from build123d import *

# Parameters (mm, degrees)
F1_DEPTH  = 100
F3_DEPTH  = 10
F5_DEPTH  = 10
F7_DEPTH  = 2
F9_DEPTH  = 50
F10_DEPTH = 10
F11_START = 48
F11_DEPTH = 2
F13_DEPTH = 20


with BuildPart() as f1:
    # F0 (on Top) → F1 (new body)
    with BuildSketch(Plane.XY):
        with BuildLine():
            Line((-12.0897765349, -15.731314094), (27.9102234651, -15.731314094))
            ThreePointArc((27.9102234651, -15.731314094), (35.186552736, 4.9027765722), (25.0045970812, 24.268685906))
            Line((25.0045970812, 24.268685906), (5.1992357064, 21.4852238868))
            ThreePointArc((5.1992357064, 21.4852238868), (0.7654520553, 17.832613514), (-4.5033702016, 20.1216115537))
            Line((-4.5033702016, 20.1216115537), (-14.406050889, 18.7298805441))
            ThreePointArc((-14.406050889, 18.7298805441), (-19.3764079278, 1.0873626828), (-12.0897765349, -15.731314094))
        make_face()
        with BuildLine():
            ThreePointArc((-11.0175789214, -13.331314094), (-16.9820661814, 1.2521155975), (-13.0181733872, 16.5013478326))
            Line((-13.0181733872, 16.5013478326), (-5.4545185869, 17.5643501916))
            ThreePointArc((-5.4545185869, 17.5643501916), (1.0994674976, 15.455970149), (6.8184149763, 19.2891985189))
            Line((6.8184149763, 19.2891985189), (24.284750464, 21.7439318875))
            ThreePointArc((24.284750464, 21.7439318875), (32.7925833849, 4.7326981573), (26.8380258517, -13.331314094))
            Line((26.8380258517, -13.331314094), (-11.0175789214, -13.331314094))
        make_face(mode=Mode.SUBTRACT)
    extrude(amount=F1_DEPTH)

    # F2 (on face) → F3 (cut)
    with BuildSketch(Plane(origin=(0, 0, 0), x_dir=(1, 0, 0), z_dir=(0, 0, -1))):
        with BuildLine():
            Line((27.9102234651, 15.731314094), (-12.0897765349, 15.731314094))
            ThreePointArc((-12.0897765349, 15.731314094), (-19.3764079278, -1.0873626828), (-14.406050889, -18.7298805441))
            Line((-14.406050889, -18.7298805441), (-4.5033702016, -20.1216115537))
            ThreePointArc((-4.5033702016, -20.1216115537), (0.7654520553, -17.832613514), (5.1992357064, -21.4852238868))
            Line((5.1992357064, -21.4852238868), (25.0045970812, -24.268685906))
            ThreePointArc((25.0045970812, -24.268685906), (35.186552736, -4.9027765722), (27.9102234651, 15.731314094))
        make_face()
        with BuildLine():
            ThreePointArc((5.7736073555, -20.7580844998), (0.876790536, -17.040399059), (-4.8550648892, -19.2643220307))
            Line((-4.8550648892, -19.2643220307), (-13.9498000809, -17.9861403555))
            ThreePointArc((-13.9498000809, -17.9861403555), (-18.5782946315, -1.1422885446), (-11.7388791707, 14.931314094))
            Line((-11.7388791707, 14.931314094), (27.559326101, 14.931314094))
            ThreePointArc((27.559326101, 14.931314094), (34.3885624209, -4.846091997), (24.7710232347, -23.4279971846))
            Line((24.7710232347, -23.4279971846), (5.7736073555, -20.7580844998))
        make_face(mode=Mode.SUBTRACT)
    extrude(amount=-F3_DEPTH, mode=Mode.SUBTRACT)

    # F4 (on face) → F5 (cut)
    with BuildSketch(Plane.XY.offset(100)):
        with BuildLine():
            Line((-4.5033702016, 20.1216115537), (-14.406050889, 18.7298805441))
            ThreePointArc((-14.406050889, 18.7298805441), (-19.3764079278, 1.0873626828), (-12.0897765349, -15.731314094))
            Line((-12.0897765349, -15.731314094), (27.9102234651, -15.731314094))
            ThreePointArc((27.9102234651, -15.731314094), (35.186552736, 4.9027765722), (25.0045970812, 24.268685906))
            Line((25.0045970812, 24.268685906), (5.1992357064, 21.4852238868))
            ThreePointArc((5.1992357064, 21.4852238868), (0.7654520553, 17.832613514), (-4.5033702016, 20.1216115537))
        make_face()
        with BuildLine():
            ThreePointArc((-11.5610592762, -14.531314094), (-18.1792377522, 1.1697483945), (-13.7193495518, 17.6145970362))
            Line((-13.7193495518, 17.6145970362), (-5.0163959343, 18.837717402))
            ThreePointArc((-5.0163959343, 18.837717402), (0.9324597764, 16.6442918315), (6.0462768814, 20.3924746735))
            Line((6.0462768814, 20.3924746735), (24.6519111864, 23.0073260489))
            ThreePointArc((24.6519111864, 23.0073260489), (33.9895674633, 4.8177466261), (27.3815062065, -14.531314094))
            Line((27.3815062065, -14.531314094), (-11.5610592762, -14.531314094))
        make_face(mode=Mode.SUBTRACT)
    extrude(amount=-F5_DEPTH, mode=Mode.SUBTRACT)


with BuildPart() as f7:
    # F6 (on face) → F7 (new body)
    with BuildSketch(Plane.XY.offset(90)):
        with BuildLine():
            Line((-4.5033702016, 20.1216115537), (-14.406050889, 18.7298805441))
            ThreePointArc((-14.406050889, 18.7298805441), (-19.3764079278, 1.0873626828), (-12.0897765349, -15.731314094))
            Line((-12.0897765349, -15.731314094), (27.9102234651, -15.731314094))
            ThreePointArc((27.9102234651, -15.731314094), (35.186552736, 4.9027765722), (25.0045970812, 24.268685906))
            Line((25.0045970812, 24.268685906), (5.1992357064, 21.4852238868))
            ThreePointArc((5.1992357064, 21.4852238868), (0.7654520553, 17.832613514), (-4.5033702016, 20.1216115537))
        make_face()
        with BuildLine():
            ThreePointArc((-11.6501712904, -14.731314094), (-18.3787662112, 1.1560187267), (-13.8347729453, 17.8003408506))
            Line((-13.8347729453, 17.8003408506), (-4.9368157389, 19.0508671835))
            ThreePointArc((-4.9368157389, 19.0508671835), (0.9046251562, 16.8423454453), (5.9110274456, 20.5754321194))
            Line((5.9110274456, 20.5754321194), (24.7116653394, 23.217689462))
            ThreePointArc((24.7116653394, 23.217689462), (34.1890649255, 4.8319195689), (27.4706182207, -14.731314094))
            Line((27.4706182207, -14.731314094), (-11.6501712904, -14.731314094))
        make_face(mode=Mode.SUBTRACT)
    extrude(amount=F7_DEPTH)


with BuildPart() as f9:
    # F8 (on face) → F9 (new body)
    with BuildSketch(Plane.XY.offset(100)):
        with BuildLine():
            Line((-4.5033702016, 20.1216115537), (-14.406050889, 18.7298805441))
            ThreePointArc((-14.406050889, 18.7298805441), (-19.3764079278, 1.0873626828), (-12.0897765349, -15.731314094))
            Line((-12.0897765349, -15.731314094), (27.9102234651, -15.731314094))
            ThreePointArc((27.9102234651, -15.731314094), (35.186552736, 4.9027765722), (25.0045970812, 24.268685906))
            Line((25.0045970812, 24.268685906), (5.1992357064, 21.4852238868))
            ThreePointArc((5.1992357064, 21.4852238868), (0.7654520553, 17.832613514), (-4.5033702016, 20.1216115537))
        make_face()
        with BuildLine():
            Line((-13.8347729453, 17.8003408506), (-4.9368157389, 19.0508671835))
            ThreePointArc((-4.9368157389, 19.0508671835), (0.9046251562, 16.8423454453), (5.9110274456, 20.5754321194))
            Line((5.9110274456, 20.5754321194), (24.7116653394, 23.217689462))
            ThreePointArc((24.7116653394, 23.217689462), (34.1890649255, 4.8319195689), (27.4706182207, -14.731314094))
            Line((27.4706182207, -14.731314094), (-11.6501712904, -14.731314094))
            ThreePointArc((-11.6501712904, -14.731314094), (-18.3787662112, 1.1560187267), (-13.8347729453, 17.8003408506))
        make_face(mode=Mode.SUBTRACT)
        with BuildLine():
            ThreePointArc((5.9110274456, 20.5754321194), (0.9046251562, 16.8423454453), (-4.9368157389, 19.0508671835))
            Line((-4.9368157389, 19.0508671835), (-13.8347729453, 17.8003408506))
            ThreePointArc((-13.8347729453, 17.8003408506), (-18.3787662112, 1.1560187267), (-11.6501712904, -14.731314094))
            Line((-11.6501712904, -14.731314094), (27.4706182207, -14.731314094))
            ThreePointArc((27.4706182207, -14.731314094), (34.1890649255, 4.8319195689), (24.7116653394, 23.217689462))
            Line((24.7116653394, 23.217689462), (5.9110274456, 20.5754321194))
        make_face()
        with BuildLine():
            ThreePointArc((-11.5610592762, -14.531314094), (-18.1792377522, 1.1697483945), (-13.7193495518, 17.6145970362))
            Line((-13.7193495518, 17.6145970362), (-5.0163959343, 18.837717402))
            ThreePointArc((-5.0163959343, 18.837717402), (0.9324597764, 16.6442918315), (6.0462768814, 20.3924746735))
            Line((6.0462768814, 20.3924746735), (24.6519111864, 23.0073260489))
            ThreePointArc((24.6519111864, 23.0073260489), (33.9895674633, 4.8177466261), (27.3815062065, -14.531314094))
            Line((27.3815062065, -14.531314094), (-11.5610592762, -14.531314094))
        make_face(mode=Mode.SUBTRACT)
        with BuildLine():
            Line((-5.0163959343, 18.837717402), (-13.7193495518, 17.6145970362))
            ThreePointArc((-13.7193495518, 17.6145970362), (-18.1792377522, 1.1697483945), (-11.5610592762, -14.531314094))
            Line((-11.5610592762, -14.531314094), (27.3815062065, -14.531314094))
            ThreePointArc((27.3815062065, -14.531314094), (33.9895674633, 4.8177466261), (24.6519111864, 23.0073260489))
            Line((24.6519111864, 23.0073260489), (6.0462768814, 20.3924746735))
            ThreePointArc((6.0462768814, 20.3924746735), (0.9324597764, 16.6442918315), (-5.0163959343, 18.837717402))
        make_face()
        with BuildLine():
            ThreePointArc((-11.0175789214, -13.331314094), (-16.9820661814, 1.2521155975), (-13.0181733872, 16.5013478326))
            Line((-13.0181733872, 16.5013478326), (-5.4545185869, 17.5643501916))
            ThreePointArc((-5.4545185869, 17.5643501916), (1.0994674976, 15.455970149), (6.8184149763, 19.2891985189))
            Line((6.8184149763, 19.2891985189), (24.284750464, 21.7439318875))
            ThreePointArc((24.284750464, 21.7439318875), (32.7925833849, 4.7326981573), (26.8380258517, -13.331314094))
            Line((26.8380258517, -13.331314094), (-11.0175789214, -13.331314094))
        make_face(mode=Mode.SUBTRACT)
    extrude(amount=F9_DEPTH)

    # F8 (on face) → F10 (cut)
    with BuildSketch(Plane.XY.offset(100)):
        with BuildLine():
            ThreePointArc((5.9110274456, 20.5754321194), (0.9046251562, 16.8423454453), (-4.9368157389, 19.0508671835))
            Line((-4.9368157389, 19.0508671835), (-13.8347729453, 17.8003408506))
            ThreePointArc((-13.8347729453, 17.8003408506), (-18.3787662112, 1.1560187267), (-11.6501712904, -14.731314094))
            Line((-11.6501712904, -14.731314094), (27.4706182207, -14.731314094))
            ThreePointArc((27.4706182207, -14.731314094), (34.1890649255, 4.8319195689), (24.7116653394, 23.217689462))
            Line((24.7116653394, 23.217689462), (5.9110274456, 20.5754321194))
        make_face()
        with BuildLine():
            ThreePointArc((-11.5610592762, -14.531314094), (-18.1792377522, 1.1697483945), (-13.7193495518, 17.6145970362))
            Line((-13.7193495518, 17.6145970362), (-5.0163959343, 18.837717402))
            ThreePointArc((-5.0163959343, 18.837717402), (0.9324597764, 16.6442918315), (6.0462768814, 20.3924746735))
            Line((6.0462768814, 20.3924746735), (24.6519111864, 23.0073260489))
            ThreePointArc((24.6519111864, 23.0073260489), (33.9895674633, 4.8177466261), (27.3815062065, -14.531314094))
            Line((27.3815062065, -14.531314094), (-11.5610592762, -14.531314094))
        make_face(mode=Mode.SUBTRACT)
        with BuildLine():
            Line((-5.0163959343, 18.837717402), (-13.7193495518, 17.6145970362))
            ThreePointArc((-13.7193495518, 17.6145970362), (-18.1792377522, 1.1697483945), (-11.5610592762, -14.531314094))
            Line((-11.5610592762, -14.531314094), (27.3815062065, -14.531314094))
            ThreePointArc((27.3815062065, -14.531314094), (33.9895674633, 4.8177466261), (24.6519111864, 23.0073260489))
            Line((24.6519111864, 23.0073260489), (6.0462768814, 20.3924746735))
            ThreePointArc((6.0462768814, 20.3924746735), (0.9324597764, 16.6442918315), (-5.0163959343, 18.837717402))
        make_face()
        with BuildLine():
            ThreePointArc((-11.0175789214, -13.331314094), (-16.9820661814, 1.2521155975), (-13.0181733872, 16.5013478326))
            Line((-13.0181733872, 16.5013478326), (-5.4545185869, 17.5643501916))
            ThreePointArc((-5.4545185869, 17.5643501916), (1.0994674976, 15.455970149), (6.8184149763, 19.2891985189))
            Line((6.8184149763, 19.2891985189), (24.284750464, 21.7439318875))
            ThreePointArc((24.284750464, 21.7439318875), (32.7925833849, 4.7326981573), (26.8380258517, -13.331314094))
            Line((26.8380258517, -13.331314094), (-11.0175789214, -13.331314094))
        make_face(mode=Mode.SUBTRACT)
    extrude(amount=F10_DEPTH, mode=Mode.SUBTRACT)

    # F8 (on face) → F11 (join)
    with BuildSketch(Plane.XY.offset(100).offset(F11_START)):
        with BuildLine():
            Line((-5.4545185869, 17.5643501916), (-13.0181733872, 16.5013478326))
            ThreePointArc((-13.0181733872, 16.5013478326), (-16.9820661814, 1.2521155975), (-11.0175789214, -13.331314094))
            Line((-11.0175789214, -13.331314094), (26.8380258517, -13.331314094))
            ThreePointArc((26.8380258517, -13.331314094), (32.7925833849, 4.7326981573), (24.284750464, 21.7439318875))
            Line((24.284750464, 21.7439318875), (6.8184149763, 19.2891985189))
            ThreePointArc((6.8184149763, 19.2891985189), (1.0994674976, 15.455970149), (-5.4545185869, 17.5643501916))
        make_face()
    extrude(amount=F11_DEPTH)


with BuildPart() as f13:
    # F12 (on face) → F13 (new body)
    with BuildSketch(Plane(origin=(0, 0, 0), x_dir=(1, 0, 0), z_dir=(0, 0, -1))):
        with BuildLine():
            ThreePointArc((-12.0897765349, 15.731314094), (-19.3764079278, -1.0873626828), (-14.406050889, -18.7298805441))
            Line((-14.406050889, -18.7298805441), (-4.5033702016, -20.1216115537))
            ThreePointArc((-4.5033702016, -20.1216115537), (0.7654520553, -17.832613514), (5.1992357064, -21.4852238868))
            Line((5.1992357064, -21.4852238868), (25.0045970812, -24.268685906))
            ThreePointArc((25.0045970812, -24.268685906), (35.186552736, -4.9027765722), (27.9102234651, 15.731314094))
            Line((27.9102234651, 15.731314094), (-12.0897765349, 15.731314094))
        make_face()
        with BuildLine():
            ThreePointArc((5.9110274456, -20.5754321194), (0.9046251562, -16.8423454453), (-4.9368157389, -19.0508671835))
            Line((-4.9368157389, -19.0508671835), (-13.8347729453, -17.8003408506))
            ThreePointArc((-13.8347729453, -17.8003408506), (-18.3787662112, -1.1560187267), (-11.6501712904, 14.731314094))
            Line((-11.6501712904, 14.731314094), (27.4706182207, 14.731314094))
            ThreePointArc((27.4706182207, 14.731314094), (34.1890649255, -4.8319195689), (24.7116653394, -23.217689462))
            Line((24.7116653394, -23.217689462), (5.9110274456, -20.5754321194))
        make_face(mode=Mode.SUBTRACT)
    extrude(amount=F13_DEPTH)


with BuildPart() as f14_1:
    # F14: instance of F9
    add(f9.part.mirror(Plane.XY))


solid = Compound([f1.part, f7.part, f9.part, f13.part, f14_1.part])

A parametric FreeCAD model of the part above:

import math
import FreeCAD as App
import Part
import Sketcher
from FreeCAD import Vector
Q = App.Units.Quantity

doc = App.newDocument("Part")
body = doc.addObject("PartDesign::Body", "Body")

# Sketch on XY plane
sketch1 = body.newObject("Sketcher::SketchObject", "Sketch")
sketch1.AttachmentSupport = (doc.getObject("XY_Plane"), [""])
sketch1.MapMode = "FlatFace"
sketch1.addGeometry([
    Part.LineSegment(Vector(-12, -16, 0), Vector(28, -16, 0)),  # 0
    Part.ArcOfCircle(Part.Circle(Vector(8, 3, 0), Vector(0, 0, 1), 27), math.radians(-43), math.radians(51)),  # 1
    Part.LineSegment(Vector(25, 24, 0), Vector(5, 21, 0)),  # 2
    Part.ArcOfCircle(Part.Circle(Vector(0, 23, 0), Vector(0, 0, 1), 6), math.radians(-145), math.radians(-19)),  # 3
    Part.LineSegment(Vector(-5, 20, 0), Vector(-14, 19, 0)),  # 4
    Part.ArcOfCircle(Part.Circle(Vector(8, 3, 0), Vector(0, 0, 1), 27), math.radians(145), math.radians(223)),  # 5
    Part.LineSegment(Vector(27, -13, 0), Vector(-11, -13, 0)),  # 6
    Part.ArcOfCircle(Part.Circle(Vector(8, 3, 0), Vector(0, 0, 1), 25), math.radians(147), math.radians(221)),  # 7
    Part.LineSegment(Vector(-13, 17, 0), Vector(-5, 18, 0)),  # 8
    Part.ArcOfCircle(Part.Circle(Vector(0, 23, 0), Vector(0, 0, 1), 8), math.radians(-134), math.radians(-30)),  # 9
    Part.LineSegment(Vector(7, 19, 0), Vector(24, 22, 0)),  # 10
    Part.ArcOfCircle(Part.Circle(Vector(8, 3, 0), Vector(0, 0, 1), 25), math.radians(-41), math.radians(49)),  # 11
], False)
sketch1.addConstraint([
    Sketcher.Constraint("Coincident", 0, 2, 1, 1),
    Sketcher.Constraint("Coincident", 1, 2, 2, 1),
    Sketcher.Constraint("Coincident", 2, 2, 3, 2),
    Sketcher.Constraint("Coincident", 3, 1, 4, 1),
    Sketcher.Constraint("Coincident", 4, 2, 5, 1),
    Sketcher.Constraint("Coincident", 5, 2, 0, 1),
    Sketcher.Constraint("Coincident", 6, 2, 7, 2),
    Sketcher.Constraint("Coincident", 7, 1, 8, 1),
    Sketcher.Constraint("Coincident", 8, 2, 9, 1),
    Sketcher.Constraint("Coincident", 9, 2, 10, 1),
    Sketcher.Constraint("Coincident", 10, 2, 11, 2),
    Sketcher.Constraint("Coincident", 11, 1, 6, 1),
    Sketcher.Constraint("Horizontal", 0),
    Sketcher.Constraint("Horizontal", 6),
    Sketcher.Constraint("Coincident", 5, 3, 1, 3),
    Sketcher.Constraint("Coincident", 7, 3, 1, 3),
    Sketcher.Constraint("Coincident", 9, 3, 3, 3),
    Sketcher.Constraint("Coincident", 11, 3, 1, 3),
    Sketcher.Constraint("Equal", 1, 5),
    Sketcher.Constraint("Equal", 7, 11),
    Sketcher.Constraint("PointOnObject", 3, 3, -2),
    Sketcher.Constraint("Parallel", 2, 4),
    Sketcher.Constraint("Parallel", 4, 8),
    Sketcher.Constraint("Parallel", 8, 10),
    Sketcher.Constraint("Radius", 3, 5.5),
    Sketcher.Constraint("Radius", 9, 7.9),
    Sketcher.Constraint("DistanceX", 0, 1, 0, 2, 40.0),
    Sketcher.Constraint("Angle", 2, Q("-172 deg")),
    Sketcher.Constraint("Distance", 2, 20.0),
    Sketcher.Constraint("Distance", 4, 10.0),
    Sketcher.Constraint("Radius", 1, 27.348199),
    Sketcher.Constraint("Radius", 7, 24.948199),
    Sketcher.Constraint("DistanceY", 5, 2, 6, 2, 2.4),
    Sketcher.Constraint("DistanceY", -1, 1, 9, 2, 19.289199),
    Sketcher.Constraint("DistanceY", 0, 2, 3, 3, 39.010402),
    Sketcher.Constraint("DistanceY", 3, 3, 1, 2, 0.989598),
    Sketcher.Constraint("DistanceY", -1, 1, 3, 1, 20.121612),
    Sketcher.Constraint("DistanceX", 8, 2, -1, 1, 5.454519),
])
pad1 = body.newObject("PartDesign::Pad", "Pad")
pad1.Profile = sketch1
pad1.Length = 100

# Sketch on XY plane
sketch2 = body.newObject("Sketcher::SketchObject", "Sketch001")
sketch2.AttachmentSupport = (doc.getObject("XY_Plane"), [""])
sketch2.MapMode = "FlatFace"
sketch2.addGeometry([
    Part.LineSegment(Vector(28, -16, 0), Vector(-12, -16, 0)),  # 0
    Part.ArcOfCircle(Part.Circle(Vector(8, 3, 0), Vector(0, 0, 1), 27), math.radians(145), math.radians(223)),  # 1
    Part.LineSegment(Vector(-14, 19, 0), Vector(-5, 20, 0)),  # 2
    Part.ArcOfCircle(Part.Circle(Vector(0, 23, 0), Vector(0, 0, 1), 6), math.radians(-145), math.radians(-19)),  # 3
    Part.LineSegment(Vector(5, 21, 0), Vector(25, 24, 0)),  # 4
    Part.ArcOfCircle(Part.Circle(Vector(8, 3, 0), Vector(0, 0, 1), 27), math.radians(-43), math.radians(51)),  # 5
    Part.LineSegment(Vector(25, 23, 0), Vector(6, 21, 0)),  # 6
    Part.ArcOfCircle(Part.Circle(Vector(0, 23, 0), Vector(0, 0, 1), 6), math.radians(-140), math.radians(-24)),  # 7
    Part.LineSegment(Vector(-5, 19, 0), Vector(-14, 18, 0)),  # 8
    Part.ArcOfCircle(Part.Circle(Vector(8, 3, 0), Vector(0, 0, 1), 27), math.radians(145), math.radians(222)),  # 9
    Part.LineSegment(Vector(-12, -15, 0), Vector(28, -15, 0)),  # 10
    Part.ArcOfCircle(Part.Circle(Vector(8, 3, 0), Vector(0, 0, 1), 27), math.radians(-42), math.radians(51)),  # 11
], False)
sketch2.addConstraint([
    Sketcher.Constraint("Coincident", 0, 2, 1, 2),
    Sketcher.Constraint("Coincident", 1, 1, 2, 1),
    Sketcher.Constraint("Coincident", 2, 2, 3, 1),
    Sketcher.Constraint("Coincident", 3, 2, 4, 1),
    Sketcher.Constraint("Coincident", 4, 2, 5, 2),
    Sketcher.Constraint("Coincident", 5, 1, 0, 1),
    Sketcher.Constraint("Coincident", 6, 2, 7, 2),
    Sketcher.Constraint("Coincident", 7, 1, 8, 1),
    Sketcher.Constraint("Coincident", 8, 2, 9, 1),
    Sketcher.Constraint("Coincident", 9, 2, 10, 1),
    Sketcher.Constraint("Coincident", 10, 2, 11, 1),
    Sketcher.Constraint("Coincident", 11, 2, 6, 1),
    Sketcher.Constraint("Horizontal", 0),
    Sketcher.Constraint("Horizontal", 10),
    Sketcher.Constraint("Coincident", 5, 3, 1, 3),
    Sketcher.Constraint("Coincident", 7, 3, 3, 3),
    Sketcher.Constraint("Coincident", 9, 3, 1, 3),
    Sketcher.Constraint("Coincident", 11, 3, 1, 3),
    Sketcher.Constraint("Equal", 1, 5),
    Sketcher.Constraint("Equal", 9, 11),
    Sketcher.Constraint("PointOnObject", 3, 3, -2),
    Sketcher.Constraint("Parallel", 2, 4),
    Sketcher.Constraint("Parallel", 4, 6),
    Sketcher.Constraint("Parallel", 6, 8),
    Sketcher.Constraint("Radius", 3, 5.5),
    Sketcher.Constraint("Radius", 7, 6.3),
    Sketcher.Constraint("DistanceX", 0, 2, 0, 1, 40.0),
    Sketcher.Constraint("Angle", 2, Q("8 deg")),
    Sketcher.Constraint("Distance", 2, 10.0),
    Sketcher.Constraint("Distance", 4, 20.0),
    Sketcher.Constraint("Radius", 1, 27.348199),
    Sketcher.Constraint("Radius", 9, 26.548199),
    Sketcher.Constraint("DistanceY", 0, 2, 9, 2, 0.8),
    Sketcher.Constraint("DistanceX", 8, 2, -1, 1, 13.9498),
    Sketcher.Constraint("DistanceY", 0, 2, 3, 3, 39.010402),
    Sketcher.Constraint("DistanceY", 3, 3, 4, 2, 0.989598),
    Sketcher.Constraint("DistanceY", -1, 1, 1, 1, 18.729881),
    Sketcher.Constraint("DistanceX", 3, 2, 6, 2, 0.574372),
])
pocket1 = body.newObject("PartDesign::Pocket", "Pocket")
pocket1.Profile = sketch2
pocket1.Length = 10
pocket1.Reversed = True

# Sketch on XY plane
sketch3 = body.newObject("Sketcher::SketchObject", "Sketch002")
sketch3.AttachmentSupport = (doc.getObject("XY_Plane"), [""])
sketch3.MapMode = "FlatFace"
sketch3.AttachmentOffset = App.Placement(Vector(0, 0, 100), App.Rotation())
sketch3.addGeometry([
    Part.LineSegment(Vector(-5, 20, 0), Vector(-14, 19, 0)),  # 0
    Part.ArcOfCircle(Part.Circle(Vector(8, 3, 0), Vector(0, 0, 1), 27), math.radians(145), math.radians(223)),  # 1
    Part.LineSegment(Vector(-12, -16, 0), Vector(28, -16, 0)),  # 2
    Part.ArcOfCircle(Part.Circle(Vector(8, 3, 0), Vector(0, 0, 1), 27), math.radians(-43), math.radians(51)),  # 3
    Part.LineSegment(Vector(25, 24, 0), Vector(5, 21, 0)),  # 4
    Part.ArcOfCircle(Part.Circle(Vector(0, 23, 0), Vector(0, 0, 1), 6), math.radians(-145), math.radians(-19)),  # 5
    Part.LineSegment(Vector(27, -15, 0), Vector(-12, -15, 0)),  # 6
    Part.ArcOfCircle(Part.Circle(Vector(8, 3, 0), Vector(0, 0, 1), 26), math.radians(146), math.radians(222)),  # 7
    Part.LineSegment(Vector(-14, 18, 0), Vector(-5, 19, 0)),  # 8
    Part.ArcOfCircle(Part.Circle(Vector(0, 23, 0), Vector(0, 0, 1), 7), math.radians(-138), math.radians(-26)),  # 9
    Part.LineSegment(Vector(6, 20, 0), Vector(25, 23, 0)),  # 10
    Part.ArcOfCircle(Part.Circle(Vector(8, 3, 0), Vector(0, 0, 1), 26), math.radians(-42), math.radians(50)),  # 11
], False)
sketch3.addConstraint([
    Sketcher.Constraint("Coincident", 0, 2, 1, 1),
    Sketcher.Constraint("Coincident", 1, 2, 2, 1),
    Sketcher.Constraint("Coincident", 2, 2, 3, 1),
    Sketcher.Constraint("Coincident", 3, 2, 4, 1),
    Sketcher.Constraint("Coincident", 4, 2, 5, 2),
    Sketcher.Constraint("Coincident", 5, 1, 0, 1),
    Sketcher.Constraint("Coincident", 6, 2, 7, 2),
    Sketcher.Constraint("Coincident", 7, 1, 8, 1),
    Sketcher.Constraint("Coincident", 8, 2, 9, 1),
    Sketcher.Constraint("Coincident", 9, 2, 10, 1),
    Sketcher.Constraint("Coincident", 10, 2, 11, 2),
    Sketcher.Constraint("Coincident", 11, 1, 6, 1),
    Sketcher.Constraint("Horizontal", 2),
    Sketcher.Constraint("Horizontal", 6),
    Sketcher.Constraint("Coincident", 3, 3, 1, 3),
    Sketcher.Constraint("Coincident", 7, 3, 1, 3),
    Sketcher.Constraint("Coincident", 9, 3, 5, 3),
    Sketcher.Constraint("Coincident", 11, 3, 1, 3),
    Sketcher.Constraint("Equal", 1, 3),
    Sketcher.Constraint("Equal", 7, 11),
    Sketcher.Constraint("PointOnObject", 5, 3, -2),
    Sketcher.Constraint("Parallel", 0, 4),
    Sketcher.Constraint("Parallel", 4, 8),
    Sketcher.Constraint("Parallel", 8, 10),
    Sketcher.Constraint("Radius", 5, 5.5),
    Sketcher.Constraint("Radius", 9, 6.7),
    Sketcher.Constraint("DistanceX", 2, 1, 2, 2, 40.0),
    Sketcher.Constraint("Angle", 0, Q("-172 deg")),
    Sketcher.Constraint("Distance", 0, 10.0),
    Sketcher.Constraint("Distance", 4, 20.0),
    Sketcher.Constraint("Radius", 1, 27.348199),
    Sketcher.Constraint("Radius", 7, 26.148199),
    Sketcher.Constraint("DistanceY", 1, 2, 6, 2, 1.2),
    Sketcher.Constraint("DistanceY", 5, 3, 3, 2, 0.989598),
    Sketcher.Constraint("DistanceX", 0, 2, 7, 1, 0.686701),
    Sketcher.Constraint("DistanceX", 0, 2, -1, 1, 14.406051),
    Sketcher.Constraint("DistanceY", -1, 1, 0, 2, 18.729881),
    Sketcher.Constraint("DistanceX", -1, 1, 10, 2, 24.651911),
])
pocket2 = body.newObject("PartDesign::Pocket", "Pocket001")
pocket2.Profile = sketch3
pocket2.Length = 10
body2 = doc.addObject("PartDesign::Body", "Body001")

# Sketch on XY plane
sketch4 = body2.newObject("Sketcher::SketchObject", "Sketch003")
sketch4.AttachmentSupport = (doc.getObject("XY_Plane001"), [""])
sketch4.MapMode = "FlatFace"
sketch4.AttachmentOffset = App.Placement(Vector(0, 0, 90), App.Rotation())
sketch4.addGeometry([
    Part.LineSegment(Vector(-5, 20, 0), Vector(-14, 19, 0)),  # 0
    Part.ArcOfCircle(Part.Circle(Vector(8, 3, 0), Vector(0, 0, 1), 27), math.radians(145), math.radians(223)),  # 1
    Part.LineSegment(Vector(-12, -16, 0), Vector(28, -16, 0)),  # 2
    Part.ArcOfCircle(Part.Circle(Vector(8, 3, 0), Vector(0, 0, 1), 27), math.radians(-43), math.radians(51)),  # 3
    Part.LineSegment(Vector(25, 24, 0), Vector(5, 21, 0)),  # 4
    Part.ArcOfCircle(Part.Circle(Vector(0, 23, 0), Vector(0, 0, 1), 6), math.radians(-145), math.radians(-19)),  # 5
    Part.LineSegment(Vector(27, -15, 0), Vector(-12, -15, 0)),  # 6
    Part.ArcOfCircle(Part.Circle(Vector(8, 3, 0), Vector(0, 0, 1), 26), math.radians(146), math.radians(222)),  # 7
    Part.LineSegment(Vector(-14, 18, 0), Vector(-5, 19, 0)),  # 8
    Part.ArcOfCircle(Part.Circle(Vector(0, 23, 0), Vector(0, 0, 1), 6), math.radians(-139), math.radians(-25)),  # 9
    Part.LineSegment(Vector(6, 21, 0), Vector(25, 23, 0)),  # 10
    Part.ArcOfCircle(Part.Circle(Vector(8, 3, 0), Vector(0, 0, 1), 26), math.radians(-42), math.radians(50)),  # 11
], False)
sketch4.addConstraint([
    Sketcher.Constraint("Coincident", 0, 2, 1, 1),
    Sketcher.Constraint("Coincident", 1, 2, 2, 1),
    Sketcher.Constraint("Coincident", 2, 2, 3, 1),
    Sketcher.Constraint("Coincident", 3, 2, 4, 1),
    Sketcher.Constraint("Coincident", 4, 2, 5, 2),
    Sketcher.Constraint("Coincident", 5, 1, 0, 1),
    Sketcher.Constraint("Coincident", 6, 2, 7, 2),
    Sketcher.Constraint("Coincident", 7, 1, 8, 1),
    Sketcher.Constraint("Coincident", 8, 2, 9, 1),
    Sketcher.Constraint("Coincident", 9, 2, 10, 1),
    Sketcher.Constraint("Coincident", 10, 2, 11, 2),
    Sketcher.Constraint("Coincident", 11, 1, 6, 1),
    Sketcher.Constraint("Horizontal", 2),
    Sketcher.Constraint("Horizontal", 6),
    Sketcher.Constraint("Coincident", 3, 3, 1, 3),
    Sketcher.Constraint("Coincident", 7, 3, 1, 3),
    Sketcher.Constraint("Coincident", 9, 3, 5, 3),
    Sketcher.Constraint("Coincident", 11, 3, 1, 3),
    Sketcher.Constraint("Equal", 1, 3),
    Sketcher.Constraint("Equal", 7, 11),
    Sketcher.Constraint("PointOnObject", 5, 3, -2),
    Sketcher.Constraint("Parallel", 0, 4),
    Sketcher.Constraint("Parallel", 4, 8),
    Sketcher.Constraint("Parallel", 8, 10),
    Sketcher.Constraint("Radius", 5, 5.5),
    Sketcher.Constraint("Radius", 9, 6.5),
    Sketcher.Constraint("DistanceX", 2, 1, 2, 2, 40.0),
    Sketcher.Constraint("Angle", 0, Q("-172 deg")),
    Sketcher.Constraint("Distance", 0, 10.0),
    Sketcher.Constraint("Distance", 4, 20.0),
    Sketcher.Constraint("DistanceY", 1, 2, 6, 2, 1.0),
    Sketcher.Constraint("Radius", 1, 27.348199),
    Sketcher.Constraint("Radius", 7, 26.348199),
    Sketcher.Constraint("DistanceY", 5, 3, 3, 2, 0.989598),
    Sketcher.Constraint("DistanceY", 10, 2, 5, 3, 0.061398),
    Sketcher.Constraint("DistanceX", 0, 2, -1, 1, 14.406051),
    Sketcher.Constraint("DistanceY", -1, 1, 0, 2, 18.729881),
    Sketcher.Constraint("DistanceY", -1, 1, 7, 1, 17.800341),
])
pad2 = body2.newObject("PartDesign::Pad", "Pad001")
pad2.Profile = sketch4
pad2.Length = 2
body3 = doc.addObject("PartDesign::Body", "Body002")

# Sketch on XY plane
sketch5 = body3.newObject("Sketcher::SketchObject", "Sketch004")
sketch5.AttachmentSupport = (doc.getObject("XY_Plane002"), [""])
sketch5.MapMode = "FlatFace"
sketch5.AttachmentOffset = App.Placement(Vector(0, 0, 100), App.Rotation())
sketch5.addGeometry([
    Part.LineSegment(Vector(-5, 20, 0), Vector(-14, 19, 0)),  # 0
    Part.ArcOfCircle(Part.Circle(Vector(8, 3, 0), Vector(0, 0, 1), 27), math.radians(145), math.radians(223)),  # 1
    Part.LineSegment(Vector(-12, -16, 0), Vector(28, -16, 0)),  # 2
    Part.ArcOfCircle(Part.Circle(Vector(8, 3, 0), Vector(0, 0, 1), 27), math.radians(-43), math.radians(51)),  # 3
    Part.LineSegment(Vector(25, 24, 0), Vector(5, 21, 0)),  # 4
    Part.ArcOfCircle(Part.Circle(Vector(0, 23, 0), Vector(0, 0, 1), 6), math.radians(-145), math.radians(-19)),  # 5
    Part.LineSegment(Vector(27, -13, 0), Vector(-11, -13, 0)),  # 6
    Part.ArcOfCircle(Part.Circle(Vector(8, 3, 0), Vector(0, 0, 1), 25), math.radians(147), math.radians(221)),  # 7
    Part.LineSegment(Vector(-13, 17, 0), Vector(-5, 18, 0)),  # 8
    Part.ArcOfCircle(Part.Circle(Vector(0, 23, 0), Vector(0, 0, 1), 8), math.radians(-134), math.radians(-30)),  # 9
    Part.LineSegment(Vector(7, 19, 0), Vector(24, 22, 0)),  # 10
    Part.ArcOfCircle(Part.Circle(Vector(8, 3, 0), Vector(0, 0, 1), 25), math.radians(-41), math.radians(49)),  # 11
], False)
sketch5.addConstraint([
    Sketcher.Constraint("Coincident", 0, 2, 1, 1),
    Sketcher.Constraint("Coincident", 1, 2, 2, 1),
    Sketcher.Constraint("Coincident", 2, 2, 3, 1),
    Sketcher.Constraint("Coincident", 3, 2, 4, 1),
    Sketcher.Constraint("Coincident", 4, 2, 5, 2),
    Sketcher.Constraint("Coincident", 5, 1, 0, 1),
    Sketcher.Constraint("Coincident", 6, 2, 7, 2),
    Sketcher.Constraint("Coincident", 7, 1, 8, 1),
    Sketcher.Constraint("Coincident", 8, 2, 9, 1),
    Sketcher.Constraint("Coincident", 9, 2, 10, 1),
    Sketcher.Constraint("Coincident", 10, 2, 11, 2),
    Sketcher.Constraint("Coincident", 11, 1, 6, 1),
    Sketcher.Constraint("Horizontal", 2),
    Sketcher.Constraint("Horizontal", 6),
    Sketcher.Constraint("Coincident", 3, 3, 1, 3),
    Sketcher.Constraint("Coincident", 7, 3, 1, 3),
    Sketcher.Constraint("Coincident", 9, 3, 5, 3),
    Sketcher.Constraint("Coincident", 11, 3, 1, 3),
    Sketcher.Constraint("Equal", 1, 3),
    Sketcher.Constraint("Equal", 7, 11),
    Sketcher.Constraint("PointOnObject", 5, 3, -2),
    Sketcher.Constraint("Parallel", 0, 4),
    Sketcher.Constraint("Parallel", 4, 8),
    Sketcher.Constraint("Parallel", 8, 10),
    Sketcher.Constraint("Radius", 5, 5.5),
    Sketcher.Constraint("Radius", 9, 7.9),
    Sketcher.Constraint("DistanceX", 2, 1, 2, 2, 40.0),
    Sketcher.Constraint("Angle", 0, Q("-172 deg")),
    Sketcher.Constraint("Distance", 0, 10.0),
    Sketcher.Constraint("Distance", 4, 20.0),
    Sketcher.Constraint("Radius", 1, 27.348199),
    Sketcher.Constraint("Radius", 7, 24.948199),
    Sketcher.Constraint("DistanceY", 1, 2, 6, 2, 2.4),
    Sketcher.Constraint("DistanceY", -1, 1, 9, 2, 19.289199),
    Sketcher.Constraint("DistanceY", 5, 3, 3, 2, 0.989598),
    Sketcher.Constraint("DistanceX", 0, 2, -1, 1, 14.406051),
    Sketcher.Constraint("DistanceY", -1, 1, 0, 2, 18.729881),
    Sketcher.Constraint("DistanceX", 8, 2, -1, 1, 5.454519),
])
pad3 = body3.newObject("PartDesign::Pad", "Pad002")
pad3.Profile = sketch5
pad3.Length = 50

# Sketch on XY plane
sketch6 = body3.newObject("Sketcher::SketchObject", "Sketch005")
sketch6.AttachmentSupport = (doc.getObject("XY_Plane002"), [""])
sketch6.MapMode = "FlatFace"
sketch6.AttachmentOffset = App.Placement(Vector(0, 0, 100), App.Rotation())
sketch6.addGeometry([
    Part.ArcOfCircle(Part.Circle(Vector(0, 23, 0), Vector(0, 0, 1), 6), math.radians(-139), math.radians(-25)),  # 0
    Part.LineSegment(Vector(-5, 19, 0), Vector(-14, 18, 0)),  # 1
    Part.ArcOfCircle(Part.Circle(Vector(8, 3, 0), Vector(0, 0, 1), 26), math.radians(146), math.radians(222)),  # 2
    Part.LineSegment(Vector(-12, -15, 0), Vector(27, -15, 0)),  # 3
    Part.ArcOfCircle(Part.Circle(Vector(8, 3, 0), Vector(0, 0, 1), 26), math.radians(-42), math.radians(50)),  # 4
    Part.LineSegment(Vector(25, 23, 0), Vector(6, 21, 0)),  # 5
    Part.LineSegment(Vector(27, -13, 0), Vector(-11, -13, 0)),  # 6
    Part.ArcOfCircle(Part.Circle(Vector(8, 3, 0), Vector(0, 0, 1), 25), math.radians(147), math.radians(221)),  # 7
    Part.LineSegment(Vector(-13, 17, 0), Vector(-5, 18, 0)),  # 8
    Part.ArcOfCircle(Part.Circle(Vector(0, 23, 0), Vector(0, 0, 1), 8), math.radians(-134), math.radians(-30)),  # 9
    Part.LineSegment(Vector(7, 19, 0), Vector(24, 22, 0)),  # 10
    Part.ArcOfCircle(Part.Circle(Vector(8, 3, 0), Vector(0, 0, 1), 25), math.radians(-41), math.radians(49)),  # 11
], False)
sketch6.addConstraint([
    Sketcher.Constraint("Coincident", 0, 1, 1, 1),
    Sketcher.Constraint("Coincident", 1, 2, 2, 1),
    Sketcher.Constraint("Coincident", 2, 2, 3, 1),
    Sketcher.Constraint("Coincident", 3, 2, 4, 1),
    Sketcher.Constraint("Coincident", 4, 2, 5, 1),
    Sketcher.Constraint("Coincident", 5, 2, 0, 2),
    Sketcher.Constraint("Coincident", 6, 2, 7, 2),
    Sketcher.Constraint("Coincident", 7, 1, 8, 1),
    Sketcher.Constraint("Coincident", 8, 2, 9, 1),
    Sketcher.Constraint("Coincident", 9, 2, 10, 1),
    Sketcher.Constraint("Coincident", 10, 2, 11, 2),
    Sketcher.Constraint("Coincident", 11, 1, 6, 1),
    Sketcher.Constraint("Horizontal", 3),
    Sketcher.Constraint("Horizontal", 6),
    Sketcher.Constraint("Coincident", 4, 3, 2, 3),
    Sketcher.Constraint("Coincident", 7, 3, 2, 3),
    Sketcher.Constraint("Coincident", 9, 3, 0, 3),
    Sketcher.Constraint("Coincident", 11, 3, 2, 3),
    Sketcher.Constraint("Equal", 2, 4),
    Sketcher.Constraint("Equal", 7, 11),
    Sketcher.Constraint("PointOnObject", 0, 3, -2),
    Sketcher.Constraint("Parallel", 1, 5),
    Sketcher.Constraint("Parallel", 5, 8),
    Sketcher.Constraint("Parallel", 8, 10),
    Sketcher.Constraint("Radius", 0, 6.5),
    Sketcher.Constraint("Radius", 9, 7.9),
    Sketcher.Constraint("Angle", 1, Q("-172 deg")),
    Sketcher.Constraint("Radius", 2, 26.348199),
    Sketcher.Constraint("Radius", 7, 24.948199),
    Sketcher.Constraint("DistanceY", 2, 2, 6, 2, 1.4),
    Sketcher.Constraint("DistanceX", 3, 1, 3, 2, 39.12079),
    Sketcher.Constraint("DistanceY", -1, 1, 9, 2, 19.289199),
    Sketcher.Constraint("DistanceX", 1, 2, 2, 2, 2.184602),
    Sketcher.Constraint("DistanceY", 4, 2, 0, 3, 0.061398),
    Sketcher.Constraint("DistanceX", 1, 2, 7, 1, 0.8166),
    Sketcher.Constraint("DistanceX", 7, 1, 5, 2, 18.929201),
    Sketcher.Constraint("DistanceY", 5, 2, 10, 2, 1.1685),
    Sketcher.Constraint("DistanceY", -1, 1, 1, 2, 17.800341),
])
pocket3 = body3.newObject("PartDesign::Pocket", "Pocket002")
pocket3.Profile = sketch6
pocket3.Length = 10
pocket3.Reversed = True

# Sketch on XY plane
sketch7 = body3.newObject("Sketcher::SketchObject", "Sketch006")
sketch7.AttachmentSupport = (doc.getObject("XY_Plane002"), [""])
sketch7.MapMode = "FlatFace"
sketch7.AttachmentOffset = App.Placement(Vector(0, 0, 148), App.Rotation())
sketch7.addGeometry([
    Part.LineSegment(Vector(-5, 18, 0), Vector(-13, 17, 0)),  # 0
    Part.ArcOfCircle(Part.Circle(Vector(8, 3, 0), Vector(0, 0, 1), 25), math.radians(147), math.radians(221)),  # 1
    Part.LineSegment(Vector(-11, -13, 0), Vector(27, -13, 0)),  # 2
    Part.ArcOfCircle(Part.Circle(Vector(8, 3, 0), Vector(0, 0, 1), 25), math.radians(-41), math.radians(49)),  # 3
    Part.LineSegment(Vector(24, 22, 0), Vector(7, 19, 0)),  # 4
    Part.ArcOfCircle(Part.Circle(Vector(0, 23, 0), Vector(0, 0, 1), 8), math.radians(-134), math.radians(-30)),  # 5
], False)
sketch7.addConstraint([
    Sketcher.Constraint("Coincident", 0, 2, 1, 1),
    Sketcher.Constraint("Coincident", 1, 2, 2, 1),
    Sketcher.Constraint("Coincident", 2, 2, 3, 1),
    Sketcher.Constraint("Coincident", 3, 2, 4, 1),
    Sketcher.Constraint("Coincident", 4, 2, 5, 2),
    Sketcher.Constraint("Coincident", 5, 1, 0, 1),
    Sketcher.Constraint("Horizontal", 2),
    Sketcher.Constraint("Coincident", 3, 3, 1, 3),
    Sketcher.Constraint("Equal", 1, 3),
    Sketcher.Constraint("PointOnObject", 5, 3, -2),
    Sketcher.Constraint("Parallel", 0, 4),
    Sketcher.Constraint("Radius", 5, 7.9),
    Sketcher.Constraint("Angle", 0, Q("-172 deg")),
    Sketcher.Constraint("Radius", 1, 24.948199),
    Sketcher.Constraint("DistanceY", -1, 1, 4, 2, 19.289199),
    Sketcher.Constraint("DistanceY", 1, 2, 5, 3, 36.610402),
    Sketcher.Constraint("DistanceX", 0, 2, 2, 2, 39.856199),
    Sketcher.Constraint("DistanceX", 2, 1, 2, 2, 37.855605),
    Sketcher.Constraint("DistanceX", 1, 2, -1, 1, 11.017579),
    Sketcher.Constraint("DistanceX", -1, 1, 3, 2, 24.28475),
])
pad4 = body3.newObject("PartDesign::Pad", "Pad003")
pad4.Profile = sketch7
pad4.Length = 2
body4 = doc.addObject("PartDesign::Body", "Body003")

# Sketch on XY plane
sketch8 = body4.newObject("Sketcher::SketchObject", "Sketch007")
sketch8.AttachmentSupport = (doc.getObject("XY_Plane003"), [""])
sketch8.MapMode = "FlatFace"
sketch8.addGeometry([
    Part.ArcOfCircle(Part.Circle(Vector(8, 3, 0), Vector(0, 0, 1), 27), math.radians(145), math.radians(223)),  # 0
    Part.LineSegment(Vector(-14, 19, 0), Vector(-5, 20, 0)),  # 1
    Part.ArcOfCircle(Part.Circle(Vector(0, 23, 0), Vector(0, 0, 1), 6), math.radians(-145), math.radians(-19)),  # 2
    Part.LineSegment(Vector(5, 21, 0), Vector(25, 24, 0)),  # 3
    Part.ArcOfCircle(Part.Circle(Vector(8, 3, 0), Vector(0, 0, 1), 27), math.radians(-43), math.radians(51)),  # 4
    Part.LineSegment(Vector(28, -16, 0), Vector(-12, -16, 0)),  # 5
    Part.LineSegment(Vector(25, 23, 0), Vector(6, 21, 0)),  # 6
    Part.ArcOfCircle(Part.Circle(Vector(0, 23, 0), Vector(0, 0, 1), 6), math.radians(-139), math.radians(-25)),  # 7
    Part.LineSegment(Vector(-5, 19, 0), Vector(-14, 18, 0)),  # 8
    Part.ArcOfCircle(Part.Circle(Vector(8, 3, 0), Vector(0, 0, 1), 26), math.radians(146), math.radians(222)),  # 9
    Part.LineSegment(Vector(-12, -15, 0), Vector(27, -15, 0)),  # 10
    Part.ArcOfCircle(Part.Circle(Vector(8, 3, 0), Vector(0, 0, 1), 26), math.radians(-42), math.radians(50)),  # 11
], False)
sketch8.addConstraint([
    Sketcher.Constraint("Coincident", 0, 1, 1, 1),
    Sketcher.Constraint("Coincident", 1, 2, 2, 1),
    Sketcher.Constraint("Coincident", 2, 2, 3, 1),
    Sketcher.Constraint("Coincident", 3, 2, 4, 2),
    Sketcher.Constraint("Coincident", 4, 1, 5, 1),
    Sketcher.Constraint("Coincident", 5, 2, 0, 2),
    Sketcher.Constraint("Coincident", 6, 2, 7, 2),
    Sketcher.Constraint("Coincident", 7, 1, 8, 1),
    Sketcher.Constraint("Coincident", 8, 2, 9, 1),
    Sketcher.Constraint("Coincident", 9, 2, 10, 1),
    Sketcher.Constraint("Coincident", 10, 2, 11, 1),
    Sketcher.Constraint("Coincident", 11, 2, 6, 1),
    Sketcher.Constraint("Horizontal", 5),
    Sketcher.Constraint("Horizontal", 10),
    Sketcher.Constraint("Coincident", 4, 3, 0, 3),
    Sketcher.Constraint("Coincident", 7, 3, 2, 3),
    Sketcher.Constraint("Coincident", 9, 3, 0, 3),
    Sketcher.Constraint("Coincident", 11, 3, 0, 3),
    Sketcher.Constraint("Equal", 0, 4),
    Sketcher.Constraint("Equal", 9, 11),
    Sketcher.Constraint("PointOnObject", 2, 3, -2),
    Sketcher.Constraint("Parallel", 1, 3),
    Sketcher.Constraint("Parallel", 3, 6),
    Sketcher.Constraint("Parallel", 6, 8),
    Sketcher.Constraint("Radius", 2, 5.5),
    Sketcher.Constraint("Radius", 7, 6.5),
    Sketcher.Constraint("DistanceX", 5, 2, 5, 1, 40.0),
    Sketcher.Constraint("Angle", 1, Q("8 deg")),
    Sketcher.Constraint("Distance", 1, 10.0),
    Sketcher.Constraint("Distance", 3, 20.0),
    Sketcher.Constraint("DistanceY", 4, 1, 3, 2, 40.0),
    Sketcher.Constraint("DistanceY", 5, 2, 9, 2, 1.0),
    Sketcher.Constraint("Radius", 0, 27.348199),
    Sketcher.Constraint("Radius", 9, 26.348199),
    Sketcher.Constraint("DistanceY", 2, 3, 3, 2, 0.989598),
    Sketcher.Constraint("DistanceY", 11, 2, 2, 3, 0.061398),
    Sketcher.Constraint("DistanceY", -1, 1, 0, 1, 18.729881),
    Sketcher.Constraint("DistanceY", -1, 1, 8, 2, 17.800341),
])
pad5 = body4.newObject("PartDesign::Pad", "Pad004")
pad5.Profile = sketch8
pad5.Length = 20
pad5.Reversed = True
body5 = doc.addObject("PartDesign::Body", "Body004")
doc.recompute()

mirroring = doc.addObject("Part::Mirroring", "Mirroring")
mirroring.Source = body3
mirroring.Base = Vector(0, 0, 0)
mirroring.Normal = Vector(0, 0, 1)
body5.BaseFeature = mirroring
doc.recompute()
mirroring.Visibility = False

doc.recompute()
